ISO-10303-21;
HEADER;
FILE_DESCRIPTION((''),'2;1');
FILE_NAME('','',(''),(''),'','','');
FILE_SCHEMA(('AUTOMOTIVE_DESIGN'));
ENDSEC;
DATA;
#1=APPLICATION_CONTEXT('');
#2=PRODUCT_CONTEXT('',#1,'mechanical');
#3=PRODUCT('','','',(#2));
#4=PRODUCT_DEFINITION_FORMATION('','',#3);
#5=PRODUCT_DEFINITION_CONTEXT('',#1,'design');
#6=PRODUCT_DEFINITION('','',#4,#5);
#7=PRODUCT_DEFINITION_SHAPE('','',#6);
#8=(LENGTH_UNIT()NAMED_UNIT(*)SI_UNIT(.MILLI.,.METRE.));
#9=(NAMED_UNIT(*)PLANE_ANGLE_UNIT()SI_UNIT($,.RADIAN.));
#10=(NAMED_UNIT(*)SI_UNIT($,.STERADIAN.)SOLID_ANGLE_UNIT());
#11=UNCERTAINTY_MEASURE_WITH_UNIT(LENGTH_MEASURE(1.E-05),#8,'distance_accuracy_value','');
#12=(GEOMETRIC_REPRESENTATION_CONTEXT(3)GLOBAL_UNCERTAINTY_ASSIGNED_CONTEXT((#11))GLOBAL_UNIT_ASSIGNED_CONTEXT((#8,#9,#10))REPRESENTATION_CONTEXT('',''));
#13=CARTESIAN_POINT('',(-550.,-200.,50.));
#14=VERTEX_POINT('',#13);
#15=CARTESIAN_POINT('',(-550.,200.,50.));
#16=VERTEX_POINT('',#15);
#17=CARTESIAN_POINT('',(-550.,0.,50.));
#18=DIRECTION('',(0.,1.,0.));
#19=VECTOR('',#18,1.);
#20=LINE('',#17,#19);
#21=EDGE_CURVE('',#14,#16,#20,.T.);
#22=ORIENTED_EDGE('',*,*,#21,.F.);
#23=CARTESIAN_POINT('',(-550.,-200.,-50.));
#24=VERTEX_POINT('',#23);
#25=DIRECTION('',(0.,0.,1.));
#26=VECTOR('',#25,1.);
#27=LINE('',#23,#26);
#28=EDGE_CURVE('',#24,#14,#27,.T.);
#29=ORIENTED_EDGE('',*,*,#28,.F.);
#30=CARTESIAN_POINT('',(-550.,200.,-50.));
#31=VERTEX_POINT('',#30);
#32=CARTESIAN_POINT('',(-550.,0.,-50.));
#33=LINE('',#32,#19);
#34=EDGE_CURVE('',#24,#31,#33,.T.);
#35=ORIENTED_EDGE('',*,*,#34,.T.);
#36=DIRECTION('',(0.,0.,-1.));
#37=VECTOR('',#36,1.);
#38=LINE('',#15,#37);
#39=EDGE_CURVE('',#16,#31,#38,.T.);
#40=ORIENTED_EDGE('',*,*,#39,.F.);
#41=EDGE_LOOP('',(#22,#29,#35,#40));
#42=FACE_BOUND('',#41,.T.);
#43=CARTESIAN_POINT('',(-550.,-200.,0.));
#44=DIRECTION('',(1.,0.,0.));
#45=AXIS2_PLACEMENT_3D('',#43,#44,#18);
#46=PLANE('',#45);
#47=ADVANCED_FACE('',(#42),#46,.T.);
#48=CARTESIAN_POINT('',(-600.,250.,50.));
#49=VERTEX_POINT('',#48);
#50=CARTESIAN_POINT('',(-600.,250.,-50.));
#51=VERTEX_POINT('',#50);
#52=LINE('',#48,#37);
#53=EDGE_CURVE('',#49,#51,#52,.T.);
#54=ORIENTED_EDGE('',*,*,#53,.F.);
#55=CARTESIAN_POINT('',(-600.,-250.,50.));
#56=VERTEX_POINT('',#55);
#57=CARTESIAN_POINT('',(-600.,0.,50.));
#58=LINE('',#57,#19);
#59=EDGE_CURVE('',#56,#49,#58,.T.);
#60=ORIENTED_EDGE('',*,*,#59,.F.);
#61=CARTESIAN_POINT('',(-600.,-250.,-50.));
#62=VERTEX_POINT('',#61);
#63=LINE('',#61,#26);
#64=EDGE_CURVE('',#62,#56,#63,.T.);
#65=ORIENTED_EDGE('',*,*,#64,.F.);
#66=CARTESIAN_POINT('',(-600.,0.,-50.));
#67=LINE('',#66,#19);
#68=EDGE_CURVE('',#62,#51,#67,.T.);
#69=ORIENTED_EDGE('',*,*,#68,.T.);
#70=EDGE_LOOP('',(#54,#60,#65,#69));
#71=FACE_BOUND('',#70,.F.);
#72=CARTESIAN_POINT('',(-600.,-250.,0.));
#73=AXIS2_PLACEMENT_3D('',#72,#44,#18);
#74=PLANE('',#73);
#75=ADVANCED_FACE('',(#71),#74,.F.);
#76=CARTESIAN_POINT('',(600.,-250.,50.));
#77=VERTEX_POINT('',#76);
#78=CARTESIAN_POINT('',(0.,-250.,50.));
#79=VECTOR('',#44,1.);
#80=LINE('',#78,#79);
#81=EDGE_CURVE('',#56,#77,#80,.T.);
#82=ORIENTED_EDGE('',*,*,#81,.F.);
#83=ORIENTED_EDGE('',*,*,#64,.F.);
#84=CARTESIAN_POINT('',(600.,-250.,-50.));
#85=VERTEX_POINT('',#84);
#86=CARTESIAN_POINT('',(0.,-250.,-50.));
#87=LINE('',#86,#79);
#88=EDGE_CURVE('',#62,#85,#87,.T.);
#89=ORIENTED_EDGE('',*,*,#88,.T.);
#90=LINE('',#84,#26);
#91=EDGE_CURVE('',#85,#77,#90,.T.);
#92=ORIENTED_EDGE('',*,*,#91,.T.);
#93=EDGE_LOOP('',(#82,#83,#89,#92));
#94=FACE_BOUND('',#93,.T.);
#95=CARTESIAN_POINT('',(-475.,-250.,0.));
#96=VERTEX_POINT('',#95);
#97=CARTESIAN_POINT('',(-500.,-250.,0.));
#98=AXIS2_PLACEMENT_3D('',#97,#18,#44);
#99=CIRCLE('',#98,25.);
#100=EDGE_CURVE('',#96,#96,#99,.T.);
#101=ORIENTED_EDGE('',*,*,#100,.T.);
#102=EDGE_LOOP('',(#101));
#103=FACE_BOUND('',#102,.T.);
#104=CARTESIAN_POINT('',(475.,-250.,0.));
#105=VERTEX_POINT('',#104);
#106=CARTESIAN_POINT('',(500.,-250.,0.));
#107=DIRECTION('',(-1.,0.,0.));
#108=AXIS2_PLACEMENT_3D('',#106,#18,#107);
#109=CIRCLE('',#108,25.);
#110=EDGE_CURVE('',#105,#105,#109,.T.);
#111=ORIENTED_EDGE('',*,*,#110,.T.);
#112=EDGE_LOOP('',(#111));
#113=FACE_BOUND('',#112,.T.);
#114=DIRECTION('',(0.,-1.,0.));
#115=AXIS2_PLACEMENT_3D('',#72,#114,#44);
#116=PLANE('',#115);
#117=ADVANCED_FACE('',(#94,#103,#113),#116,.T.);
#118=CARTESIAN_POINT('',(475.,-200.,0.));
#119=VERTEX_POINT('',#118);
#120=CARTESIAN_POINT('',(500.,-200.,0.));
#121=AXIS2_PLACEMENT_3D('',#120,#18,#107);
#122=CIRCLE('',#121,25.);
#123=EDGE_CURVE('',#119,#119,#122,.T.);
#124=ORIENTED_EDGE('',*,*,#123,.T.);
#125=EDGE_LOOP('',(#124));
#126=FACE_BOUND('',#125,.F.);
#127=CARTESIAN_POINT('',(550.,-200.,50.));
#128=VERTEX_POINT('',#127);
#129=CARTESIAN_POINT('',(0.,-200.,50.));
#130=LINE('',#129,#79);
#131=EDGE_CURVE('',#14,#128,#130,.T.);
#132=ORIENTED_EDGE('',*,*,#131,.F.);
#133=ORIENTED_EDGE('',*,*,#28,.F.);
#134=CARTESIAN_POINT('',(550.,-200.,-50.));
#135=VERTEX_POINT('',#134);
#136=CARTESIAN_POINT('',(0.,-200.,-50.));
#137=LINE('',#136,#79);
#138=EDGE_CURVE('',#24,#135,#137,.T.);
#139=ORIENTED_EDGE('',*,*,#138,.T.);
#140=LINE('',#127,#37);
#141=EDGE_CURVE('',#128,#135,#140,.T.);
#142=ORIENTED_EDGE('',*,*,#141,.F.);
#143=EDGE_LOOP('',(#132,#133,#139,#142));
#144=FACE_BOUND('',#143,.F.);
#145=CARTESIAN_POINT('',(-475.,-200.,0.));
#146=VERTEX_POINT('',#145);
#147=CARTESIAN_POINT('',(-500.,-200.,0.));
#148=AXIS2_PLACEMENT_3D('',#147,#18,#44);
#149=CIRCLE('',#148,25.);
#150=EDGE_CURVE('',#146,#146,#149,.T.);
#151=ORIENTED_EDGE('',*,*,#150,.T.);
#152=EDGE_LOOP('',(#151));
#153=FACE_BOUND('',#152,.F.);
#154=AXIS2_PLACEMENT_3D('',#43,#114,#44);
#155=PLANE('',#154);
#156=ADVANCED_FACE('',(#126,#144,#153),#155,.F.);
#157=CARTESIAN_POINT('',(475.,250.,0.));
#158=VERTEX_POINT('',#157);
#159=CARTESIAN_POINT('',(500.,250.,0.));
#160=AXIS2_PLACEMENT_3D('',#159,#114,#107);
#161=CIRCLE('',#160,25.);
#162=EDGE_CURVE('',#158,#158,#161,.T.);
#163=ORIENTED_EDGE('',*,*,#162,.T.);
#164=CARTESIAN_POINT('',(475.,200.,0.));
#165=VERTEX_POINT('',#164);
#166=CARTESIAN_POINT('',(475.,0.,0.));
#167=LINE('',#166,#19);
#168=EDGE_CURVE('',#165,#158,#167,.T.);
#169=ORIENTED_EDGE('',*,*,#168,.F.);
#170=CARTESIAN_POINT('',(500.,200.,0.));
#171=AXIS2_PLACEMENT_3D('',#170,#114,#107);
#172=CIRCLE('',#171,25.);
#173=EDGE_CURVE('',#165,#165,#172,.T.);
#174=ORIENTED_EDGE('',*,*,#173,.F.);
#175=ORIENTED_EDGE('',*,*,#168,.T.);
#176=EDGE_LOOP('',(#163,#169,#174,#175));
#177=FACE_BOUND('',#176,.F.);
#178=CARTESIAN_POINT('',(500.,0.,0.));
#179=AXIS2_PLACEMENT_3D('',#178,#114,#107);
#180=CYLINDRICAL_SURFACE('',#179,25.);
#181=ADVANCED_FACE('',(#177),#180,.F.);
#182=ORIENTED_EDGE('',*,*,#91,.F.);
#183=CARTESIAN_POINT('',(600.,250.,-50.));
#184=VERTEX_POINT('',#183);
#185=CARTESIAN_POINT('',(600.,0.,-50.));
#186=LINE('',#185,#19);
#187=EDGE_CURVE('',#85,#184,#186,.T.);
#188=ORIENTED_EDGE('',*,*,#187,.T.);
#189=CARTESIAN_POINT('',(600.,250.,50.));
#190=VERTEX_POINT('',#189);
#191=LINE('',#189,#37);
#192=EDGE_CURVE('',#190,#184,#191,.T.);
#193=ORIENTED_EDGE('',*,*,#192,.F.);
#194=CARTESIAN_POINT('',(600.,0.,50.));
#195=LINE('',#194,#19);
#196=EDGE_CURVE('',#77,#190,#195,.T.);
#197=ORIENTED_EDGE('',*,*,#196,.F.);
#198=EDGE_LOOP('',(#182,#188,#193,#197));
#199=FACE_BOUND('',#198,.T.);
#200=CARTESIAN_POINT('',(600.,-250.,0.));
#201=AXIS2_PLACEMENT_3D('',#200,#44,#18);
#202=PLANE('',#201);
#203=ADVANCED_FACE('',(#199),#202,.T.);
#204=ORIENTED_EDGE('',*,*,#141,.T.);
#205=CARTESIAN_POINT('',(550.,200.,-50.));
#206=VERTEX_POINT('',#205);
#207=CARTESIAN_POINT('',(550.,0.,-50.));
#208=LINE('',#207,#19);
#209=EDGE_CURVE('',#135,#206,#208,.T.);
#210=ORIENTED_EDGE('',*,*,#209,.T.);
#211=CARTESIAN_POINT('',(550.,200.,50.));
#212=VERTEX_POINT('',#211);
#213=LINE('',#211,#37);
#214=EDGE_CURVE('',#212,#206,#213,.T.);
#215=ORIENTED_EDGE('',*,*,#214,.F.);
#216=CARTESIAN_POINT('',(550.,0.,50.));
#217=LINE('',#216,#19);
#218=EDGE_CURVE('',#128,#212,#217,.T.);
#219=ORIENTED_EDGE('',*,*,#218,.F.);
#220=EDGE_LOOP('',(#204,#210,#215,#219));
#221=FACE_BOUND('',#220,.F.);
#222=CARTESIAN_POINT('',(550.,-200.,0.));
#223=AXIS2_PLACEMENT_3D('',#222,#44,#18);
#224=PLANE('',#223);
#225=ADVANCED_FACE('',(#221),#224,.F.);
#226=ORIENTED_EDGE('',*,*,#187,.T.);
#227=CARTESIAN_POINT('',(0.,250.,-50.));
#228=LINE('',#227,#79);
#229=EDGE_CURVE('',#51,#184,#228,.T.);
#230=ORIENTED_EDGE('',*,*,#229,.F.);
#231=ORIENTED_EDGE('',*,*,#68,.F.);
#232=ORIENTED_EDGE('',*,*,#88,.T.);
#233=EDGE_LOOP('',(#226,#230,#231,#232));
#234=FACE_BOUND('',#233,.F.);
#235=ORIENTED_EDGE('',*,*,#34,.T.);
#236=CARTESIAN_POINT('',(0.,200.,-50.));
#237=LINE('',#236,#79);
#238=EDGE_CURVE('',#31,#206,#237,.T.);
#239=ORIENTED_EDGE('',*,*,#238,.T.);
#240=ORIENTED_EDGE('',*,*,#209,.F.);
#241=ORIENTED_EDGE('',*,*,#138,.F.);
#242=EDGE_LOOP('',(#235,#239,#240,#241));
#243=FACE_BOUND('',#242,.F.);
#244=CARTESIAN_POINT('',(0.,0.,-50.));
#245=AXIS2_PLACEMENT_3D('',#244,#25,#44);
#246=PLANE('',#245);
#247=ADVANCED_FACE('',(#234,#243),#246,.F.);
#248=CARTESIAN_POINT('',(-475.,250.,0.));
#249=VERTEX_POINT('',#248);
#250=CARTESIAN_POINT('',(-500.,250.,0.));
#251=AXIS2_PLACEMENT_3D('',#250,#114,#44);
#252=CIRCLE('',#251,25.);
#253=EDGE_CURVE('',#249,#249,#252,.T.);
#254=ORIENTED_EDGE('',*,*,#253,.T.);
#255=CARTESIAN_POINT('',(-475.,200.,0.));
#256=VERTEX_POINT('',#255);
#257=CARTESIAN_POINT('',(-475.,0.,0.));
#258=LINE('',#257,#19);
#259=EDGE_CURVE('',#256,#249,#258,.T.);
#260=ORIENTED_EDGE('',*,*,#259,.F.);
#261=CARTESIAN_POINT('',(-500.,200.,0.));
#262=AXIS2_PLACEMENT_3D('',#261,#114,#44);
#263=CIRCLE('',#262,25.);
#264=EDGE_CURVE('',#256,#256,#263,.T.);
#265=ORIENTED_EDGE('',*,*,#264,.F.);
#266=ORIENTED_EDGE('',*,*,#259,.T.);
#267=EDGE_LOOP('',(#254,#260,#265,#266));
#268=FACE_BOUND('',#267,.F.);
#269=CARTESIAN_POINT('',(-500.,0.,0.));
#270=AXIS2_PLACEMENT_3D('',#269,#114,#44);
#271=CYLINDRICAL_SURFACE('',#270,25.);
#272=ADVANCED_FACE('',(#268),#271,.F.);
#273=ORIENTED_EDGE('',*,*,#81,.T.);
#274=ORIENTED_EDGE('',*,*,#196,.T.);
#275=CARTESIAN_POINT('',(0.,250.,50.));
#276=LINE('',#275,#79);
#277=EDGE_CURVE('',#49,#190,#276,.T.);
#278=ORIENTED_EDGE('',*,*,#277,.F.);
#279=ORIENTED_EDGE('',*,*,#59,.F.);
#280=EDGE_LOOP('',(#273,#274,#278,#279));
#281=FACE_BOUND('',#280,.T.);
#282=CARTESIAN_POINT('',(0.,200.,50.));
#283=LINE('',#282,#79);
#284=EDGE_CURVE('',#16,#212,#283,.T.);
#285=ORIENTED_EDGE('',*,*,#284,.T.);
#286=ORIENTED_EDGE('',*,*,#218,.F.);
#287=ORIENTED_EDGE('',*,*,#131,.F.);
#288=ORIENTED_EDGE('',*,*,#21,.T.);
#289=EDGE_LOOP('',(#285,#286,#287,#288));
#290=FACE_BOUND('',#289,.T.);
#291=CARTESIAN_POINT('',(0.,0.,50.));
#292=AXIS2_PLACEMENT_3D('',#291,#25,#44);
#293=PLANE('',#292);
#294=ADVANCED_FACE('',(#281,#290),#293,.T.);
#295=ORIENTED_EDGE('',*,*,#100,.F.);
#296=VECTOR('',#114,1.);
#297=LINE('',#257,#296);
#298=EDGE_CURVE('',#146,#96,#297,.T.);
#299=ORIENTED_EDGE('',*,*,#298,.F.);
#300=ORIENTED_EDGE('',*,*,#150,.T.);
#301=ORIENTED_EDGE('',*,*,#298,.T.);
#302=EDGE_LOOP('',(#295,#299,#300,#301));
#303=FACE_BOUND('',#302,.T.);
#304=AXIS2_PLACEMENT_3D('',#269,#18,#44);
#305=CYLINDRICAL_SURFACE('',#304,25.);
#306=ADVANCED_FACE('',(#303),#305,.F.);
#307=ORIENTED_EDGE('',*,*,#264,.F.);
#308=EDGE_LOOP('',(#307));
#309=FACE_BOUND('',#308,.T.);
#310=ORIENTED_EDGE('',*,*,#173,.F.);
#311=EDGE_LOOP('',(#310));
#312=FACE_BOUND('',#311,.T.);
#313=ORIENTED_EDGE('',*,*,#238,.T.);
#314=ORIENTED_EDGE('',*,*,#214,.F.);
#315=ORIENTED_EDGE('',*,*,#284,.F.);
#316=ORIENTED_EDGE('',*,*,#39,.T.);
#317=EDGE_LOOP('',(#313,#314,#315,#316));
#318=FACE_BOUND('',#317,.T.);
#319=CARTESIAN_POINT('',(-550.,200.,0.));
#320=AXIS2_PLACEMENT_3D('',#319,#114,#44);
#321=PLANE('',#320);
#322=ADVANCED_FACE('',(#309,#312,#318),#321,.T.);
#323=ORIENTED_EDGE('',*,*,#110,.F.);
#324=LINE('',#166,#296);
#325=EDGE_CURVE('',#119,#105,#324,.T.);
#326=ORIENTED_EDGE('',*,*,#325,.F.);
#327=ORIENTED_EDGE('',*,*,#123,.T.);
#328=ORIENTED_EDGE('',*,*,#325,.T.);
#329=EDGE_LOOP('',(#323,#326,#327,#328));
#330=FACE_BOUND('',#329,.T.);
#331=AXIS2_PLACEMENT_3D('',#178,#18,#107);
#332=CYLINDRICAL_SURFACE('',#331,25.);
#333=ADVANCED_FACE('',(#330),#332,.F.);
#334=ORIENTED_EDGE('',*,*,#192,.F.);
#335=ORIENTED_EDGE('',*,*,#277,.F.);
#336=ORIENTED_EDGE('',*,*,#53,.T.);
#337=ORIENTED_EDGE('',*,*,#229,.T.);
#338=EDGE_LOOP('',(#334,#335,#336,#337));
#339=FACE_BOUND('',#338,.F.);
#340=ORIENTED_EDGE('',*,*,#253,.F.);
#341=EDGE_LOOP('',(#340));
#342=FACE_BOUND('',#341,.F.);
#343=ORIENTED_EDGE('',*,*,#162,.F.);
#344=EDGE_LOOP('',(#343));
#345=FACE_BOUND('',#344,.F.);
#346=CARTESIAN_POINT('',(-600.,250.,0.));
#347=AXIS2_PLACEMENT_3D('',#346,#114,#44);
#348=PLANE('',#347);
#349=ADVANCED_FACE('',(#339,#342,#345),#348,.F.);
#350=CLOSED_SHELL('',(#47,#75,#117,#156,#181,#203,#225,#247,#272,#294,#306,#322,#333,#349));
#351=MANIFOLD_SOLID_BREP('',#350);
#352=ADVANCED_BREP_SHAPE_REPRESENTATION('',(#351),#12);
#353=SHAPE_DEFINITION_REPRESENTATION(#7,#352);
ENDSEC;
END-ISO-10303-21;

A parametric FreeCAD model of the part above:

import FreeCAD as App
import Part
import Sketcher

V = App.Vector


def add_polygon(sketch, points):
    """Adds a closed chain of lines whose ends are joined by coincident constraints."""
    first, n = sketch.GeometryCount, len(points)
    for a, b in zip(points, points[1:] + points[:1]):
        sketch.addGeometry(Part.LineSegment(App.Vector(*a, 0), App.Vector(*b, 0)), False)
    for i in range(n):
        sketch.addConstraint(Sketcher.Constraint("Coincident", first + i, 2, first + (i + 1) % n, 1))

doc = App.newDocument("Part")
body = doc.addObject("PartDesign::Body", "Body")

sketch1 = doc.addObject("Sketcher::SketchObject", "Sketch")
body.addObject(sketch1)
sketch1.AttachmentSupport = (doc.XY_Plane, [""])
sketch1.MapMode = "FlatFace"
add_polygon(sketch1, [(-600, 250), (-600, -250), (600, -250), (600, 250)])
add_polygon(sketch1, [(550, -200), (-550, -200), (-550, 200), (550, 200)])
sketch1.addConstraint(Sketcher.Constraint("Vertical", 0))
sketch1.addConstraint(Sketcher.Constraint("Horizontal", 1))
sketch1.addConstraint(Sketcher.Constraint("Vertical", 2))
sketch1.addConstraint(Sketcher.Constraint("Horizontal", 3))
sketch1.addConstraint(Sketcher.Constraint("Horizontal", 4))
sketch1.addConstraint(Sketcher.Constraint("Vertical", 5))
sketch1.addConstraint(Sketcher.Constraint("Horizontal", 6))
sketch1.addConstraint(Sketcher.Constraint("Vertical", 7))
sketch1.addConstraint(Sketcher.Constraint("Symmetric", 0, 2, 2, 2, -1, 1))
sketch1.addConstraint(Sketcher.Constraint("Symmetric", 4, 2, 6, 2, -1, 1))
sketch1.addConstraint(Sketcher.Constraint("DistanceX", 1, 1, 1, 2, 1200.0))
sketch1.addConstraint(Sketcher.Constraint("DistanceX", 4, 2, 4, 1, 1100.0))
sketch1.addConstraint(Sketcher.Constraint("DistanceY", 0, 2, 0, 1, 500.0))
sketch1.addConstraint(Sketcher.Constraint("DistanceY", 5, 1, 5, 2, 400.0))
pad1 = doc.addObject("PartDesign::Pad", "Pad")
body.addObject(pad1)
pad1.Profile = sketch1
pad1.Length = 100
pad1.Midplane = True

sketch2 = doc.addObject("Sketcher::SketchObject", "Sketch001")
body.addObject(sketch2)
sketch2.AttachmentSupport = (doc.XZ_Plane, [""])
sketch2.MapMode = "FlatFace"
sketch2.addGeometry(Part.Circle(V(-500, 0, 0), V(0, 0, 1), 25), False)
sketch2.addGeometry(Part.Circle(V(500, 0, 0), V(0, 0, 1), 25), False)
sketch2.addConstraint(Sketcher.Constraint("Equal", 0, 1))
sketch2.addConstraint(Sketcher.Constraint("Symmetric", 0, 3, 1, 3, -1, 1))
sketch2.addConstraint(Sketcher.Constraint("PointOnObject", 0, 3, -1))
sketch2.addConstraint(Sketcher.Constraint("Diameter", 0, 50.0))
sketch2.addConstraint(Sketcher.Constraint("DistanceX", 0, 3, -1, 1, 500.0))
pocket1 = doc.addObject("PartDesign::Pocket", "Pocket")
body.addObject(pocket1)
pocket1.Profile = sketch2
pocket1.Type = "ThroughAll"
pocket1.Midplane = True

doc.recompute()
